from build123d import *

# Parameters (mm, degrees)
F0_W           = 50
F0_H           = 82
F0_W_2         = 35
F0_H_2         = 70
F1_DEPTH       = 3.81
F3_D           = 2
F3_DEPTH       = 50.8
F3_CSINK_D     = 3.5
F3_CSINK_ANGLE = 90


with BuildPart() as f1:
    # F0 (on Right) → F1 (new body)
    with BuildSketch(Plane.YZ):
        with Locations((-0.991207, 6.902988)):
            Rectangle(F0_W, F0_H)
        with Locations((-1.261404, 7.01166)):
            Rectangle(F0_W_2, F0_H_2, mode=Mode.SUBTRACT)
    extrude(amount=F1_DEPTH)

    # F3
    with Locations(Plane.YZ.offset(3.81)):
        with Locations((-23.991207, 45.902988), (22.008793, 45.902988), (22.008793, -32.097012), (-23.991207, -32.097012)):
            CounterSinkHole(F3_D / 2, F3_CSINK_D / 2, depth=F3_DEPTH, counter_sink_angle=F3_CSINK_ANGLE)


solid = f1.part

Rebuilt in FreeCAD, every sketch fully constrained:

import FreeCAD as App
import Part
import Sketcher

V = App.Vector
Q = App.Units.Quantity

doc = App.newDocument("Part")
params = doc.addObject("Spreadsheet::Sheet", "Params")
for row, (alias, value) in enumerate([
    ("sketch1_width", "50 mm"),
    ("sketch1_width2", "35 mm"),
    ("sketch1_height", "82 mm"),
    ("sketch1_height2", "70 mm"),
    ("pad1_length", "3.81 mm"),
    ("sketch2_diameter", "2 mm"),
    ("hole_diameter", "2 mm"),
    ("hole_depth", "50.8 mm"),
    ("hole_csink_diameter", "3.5 mm"),
], start=1):
    params.set(f"A{row}", alias)
    params.set(f"B{row}", "=" + value)
    params.setAlias(f"B{row}", alias)

body = doc.addObject("PartDesign::Body", "Body")

# Sketch on YZ plane
sketch1 = body.newObject("Sketcher::SketchObject", "Sketch")
sketch1.AttachmentSupport = (doc.getObject("YZ_Plane"), [""])
sketch1.MapMode = "FlatFace"
sketch1.addGeometry(Part.LineSegment(V(-25.991207, 47.902988, 0), V(-25.991207, -34.097012, 0)), False)
sketch1.addGeometry(Part.LineSegment(V(-25.991207, -34.097012, 0), V(24.008793, -34.097012, 0)), False)
sketch1.addGeometry(Part.LineSegment(V(24.008793, -34.097012, 0), V(24.008793, 47.902988, 0)), False)
sketch1.addGeometry(Part.LineSegment(V(24.008793, 47.902988, 0), V(-25.991207, 47.902988, 0)), False)
sketch1.addGeometry(Part.LineSegment(V(16.238596, -27.98834, 0), V(-18.761404, -27.98834, 0)), False)
sketch1.addGeometry(Part.LineSegment(V(-18.761404, -27.98834, 0), V(-18.761404, 42.01166, 0)), False)
sketch1.addGeometry(Part.LineSegment(V(-18.761404, 42.01166, 0), V(16.238596, 42.01166, 0)), False)
sketch1.addGeometry(Part.LineSegment(V(16.238596, 42.01166, 0), V(16.238596, -27.98834, 0)), False)
sketch1.addConstraint(Sketcher.Constraint("Coincident", 0, 2, 1, 1))
sketch1.addConstraint(Sketcher.Constraint("Coincident", 1, 2, 2, 1))
sketch1.addConstraint(Sketcher.Constraint("Coincident", 2, 2, 3, 1))
sketch1.addConstraint(Sketcher.Constraint("Coincident", 3, 2, 0, 1))
sketch1.addConstraint(Sketcher.Constraint("Coincident", 4, 2, 5, 1))
sketch1.addConstraint(Sketcher.Constraint("Coincident", 5, 2, 6, 1))
sketch1.addConstraint(Sketcher.Constraint("Coincident", 6, 2, 7, 1))
sketch1.addConstraint(Sketcher.Constraint("Coincident", 7, 2, 4, 1))
sketch1.addConstraint(Sketcher.Constraint("Vertical", 0))
sketch1.addConstraint(Sketcher.Constraint("Horizontal", 1))
sketch1.addConstraint(Sketcher.Constraint("Vertical", 2))
sketch1.addConstraint(Sketcher.Constraint("Horizontal", 3))
sketch1.addConstraint(Sketcher.Constraint("Horizontal", 4))
sketch1.addConstraint(Sketcher.Constraint("Vertical", 5))
sketch1.addConstraint(Sketcher.Constraint("Horizontal", 6))
sketch1.addConstraint(Sketcher.Constraint("Vertical", 7))
sketch1.addConstraint(Sketcher.Constraint("DistanceX", 1, 1, 1, 2, Q("50 mm")))
sketch1.addConstraint(Sketcher.Constraint("DistanceX", 4, 2, 4, 1, Q("35 mm")))
sketch1.addConstraint(Sketcher.Constraint("DistanceY", 0, 2, 0, 1, Q("82 mm")))
sketch1.addConstraint(Sketcher.Constraint("DistanceY", 5, 1, 5, 2, Q("70 mm")))
sketch1.addConstraint(Sketcher.Constraint("DistanceY", 4, 2, -1, 1, Q("27.98834 mm")))
sketch1.addConstraint(Sketcher.Constraint("DistanceY", 0, 2, 4, 2, Q("6.108672 mm")))
sketch1.addConstraint(Sketcher.Constraint("DistanceX", 0, 2, -1, 1, Q("25.991207 mm")))
sketch1.addConstraint(Sketcher.Constraint("DistanceX", 4, 2, -1, 1, Q("18.761404 mm")))
sketch1.setExpression("Constraints[16]", "Params.sketch1_width")
sketch1.setExpression("Constraints[17]", "Params.sketch1_width2")
sketch1.setExpression("Constraints[18]", "Params.sketch1_height")
sketch1.setExpression("Constraints[19]", "Params.sketch1_height2")
pad1 = body.newObject("PartDesign::Pad", "Pad")
pad1.Profile = sketch1
pad1.setExpression("Length", "Params.pad1_length")

# Sketch on YZ plane
sketch2 = body.newObject("Sketcher::SketchObject", "Sketch001")
sketch2.AttachmentSupport = (doc.getObject("YZ_Plane"), [""])
sketch2.MapMode = "FlatFace"
sketch2.AttachmentOffset = App.Placement(V(0, 0, 3.81), App.Rotation())
sketch2.addGeometry(Part.Circle(V(-23.991207, 45.902988, 0), V(0, 0, 1), 1), False)
sketch2.addGeometry(Part.Circle(V(22.008793, 45.902988, 0), V(0, 0, 1), 1), False)
sketch2.addGeometry(Part.Circle(V(22.008793, -32.097012, 0), V(0, 0, 1), 1), False)
sketch2.addGeometry(Part.Circle(V(-23.991207, -32.097012, 0), V(0, 0, 1), 1), False)
sketch2.addConstraint(Sketcher.Constraint("Equal", 0, 1))
sketch2.addConstraint(Sketcher.Constraint("Equal", 1, 2))
sketch2.addConstraint(Sketcher.Constraint("Equal", 2, 3))
sketch2.addConstraint(Sketcher.Constraint("Horizontal", 0, 3, 1, 3))
sketch2.addConstraint(Sketcher.Constraint("Horizontal", 2, 3, 3, 3))
sketch2.addConstraint(Sketcher.Constraint("Vertical", 1, 3, 2, 3))
sketch2.addConstraint(Sketcher.Constraint("Vertical", 0, 3, 3, 3))
sketch2.addConstraint(Sketcher.Constraint("Diameter", 0, Q("2 mm")))
sketch2.addConstraint(Sketcher.Constraint("DistanceX", 0, 3, 1, 3, Q("46 mm")))
sketch2.addConstraint(Sketcher.Constraint("DistanceY", 2, 3, 1, 3, Q("78 mm")))
sketch2.addConstraint(Sketcher.Constraint("DistanceX", 0, 3, -1, 1, Q("23.991207 mm")))
sketch2.addConstraint(Sketcher.Constraint("DistanceY", -1, 1, 0, 3, Q("45.902988 mm")))
sketch2.setExpression("Constraints[7]", "Params.sketch2_diameter")
doc.recompute()
hole = body.newObject("PartDesign::Hole", "Hole")
hole.Profile = sketch2
hole.ThreadType = "None"
hole.setExpression("Diameter", "Params.hole_diameter")
hole.DepthType = "Dimension"
hole.setExpression("Depth", "Params.hole_depth")
hole.DrillPoint = "Flat"
hole.HoleCutType = "Countersink"
hole.setExpression("HoleCutDiameter", "Params.hole_csink_diameter")
hole.HoleCutCountersinkAngle = 90

doc.recompute()
